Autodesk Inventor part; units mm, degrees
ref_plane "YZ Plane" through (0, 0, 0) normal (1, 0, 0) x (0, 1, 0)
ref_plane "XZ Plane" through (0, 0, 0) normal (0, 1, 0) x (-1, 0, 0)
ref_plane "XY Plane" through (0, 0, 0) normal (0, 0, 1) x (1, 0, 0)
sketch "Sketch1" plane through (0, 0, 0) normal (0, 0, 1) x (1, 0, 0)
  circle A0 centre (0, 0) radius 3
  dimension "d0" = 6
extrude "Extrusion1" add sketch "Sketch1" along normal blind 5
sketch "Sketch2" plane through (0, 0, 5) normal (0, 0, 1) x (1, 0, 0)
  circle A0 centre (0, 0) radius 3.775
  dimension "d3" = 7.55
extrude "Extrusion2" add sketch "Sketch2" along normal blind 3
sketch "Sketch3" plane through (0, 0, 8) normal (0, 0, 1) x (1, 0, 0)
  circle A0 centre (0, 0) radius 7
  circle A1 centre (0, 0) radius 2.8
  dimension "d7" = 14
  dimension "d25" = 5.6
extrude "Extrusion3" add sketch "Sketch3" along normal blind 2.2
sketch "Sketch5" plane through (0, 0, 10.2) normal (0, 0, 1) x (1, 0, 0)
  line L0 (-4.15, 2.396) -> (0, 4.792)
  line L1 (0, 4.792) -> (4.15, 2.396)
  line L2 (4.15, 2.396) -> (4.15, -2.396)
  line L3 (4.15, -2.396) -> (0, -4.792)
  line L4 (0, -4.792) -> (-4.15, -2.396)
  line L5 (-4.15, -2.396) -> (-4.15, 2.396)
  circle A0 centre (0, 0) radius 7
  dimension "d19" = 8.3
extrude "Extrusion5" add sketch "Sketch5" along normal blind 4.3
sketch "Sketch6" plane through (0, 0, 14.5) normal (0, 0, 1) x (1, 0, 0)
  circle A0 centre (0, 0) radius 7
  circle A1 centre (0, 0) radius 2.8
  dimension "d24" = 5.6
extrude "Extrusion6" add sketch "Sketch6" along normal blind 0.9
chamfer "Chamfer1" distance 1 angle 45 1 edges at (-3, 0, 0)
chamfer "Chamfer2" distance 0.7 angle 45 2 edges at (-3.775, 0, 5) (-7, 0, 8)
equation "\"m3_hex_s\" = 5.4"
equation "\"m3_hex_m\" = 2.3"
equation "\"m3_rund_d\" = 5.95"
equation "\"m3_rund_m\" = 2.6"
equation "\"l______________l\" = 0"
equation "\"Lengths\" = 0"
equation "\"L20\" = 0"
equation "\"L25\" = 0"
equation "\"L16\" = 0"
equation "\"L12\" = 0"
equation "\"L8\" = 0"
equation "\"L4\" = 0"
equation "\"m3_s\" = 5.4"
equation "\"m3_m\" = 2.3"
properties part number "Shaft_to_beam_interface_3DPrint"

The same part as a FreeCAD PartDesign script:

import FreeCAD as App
import Part
import Sketcher
Q = App.Units.Quantity


def edges_at(feature, points):
    """Names of the edges that pass closest to the given points."""
    edges = feature.Shape.Edges
    near = lambda p: min(range(len(edges)), key=lambda i: edges[i].distToShape(Part.Vertex(*p))[0])
    return sorted({f"Edge{near(p) + 1}" for p in points})

doc = App.newDocument("Part")
body = doc.addObject("PartDesign::Body", "Body")

sketch1 = doc.addObject("Sketcher::SketchObject", "Sketch")
body.addObject(sketch1)
sketch1.AttachmentSupport = (doc.XY_Plane, [""])
sketch1.MapMode = "FlatFace"
sketch1.addGeometry(Part.Circle(App.Vector(0, 0, 0), App.Vector(0, 0, 1), 3), False)
sketch1.addConstraint(Sketcher.Constraint("Coincident", 0, 3, -1, 1))
sketch1.addConstraint(Sketcher.Constraint("Diameter", 0, 6.0))
pad1 = doc.addObject("PartDesign::Pad", "Pad")
body.addObject(pad1)
pad1.Profile = sketch1
pad1.Length = 5

sketch2 = doc.addObject("Sketcher::SketchObject", "Sketch001")
body.addObject(sketch2)
sketch2.AttachmentSupport = (doc.XY_Plane, [""])
sketch2.MapMode = "FlatFace"
sketch2.AttachmentOffset = App.Placement(App.Vector(0, 0, 5), App.Rotation())
sketch2.addGeometry(Part.Circle(App.Vector(0, 0, 0), App.Vector(0, 0, 1), 3.8), False)
sketch2.addConstraint(Sketcher.Constraint("Coincident", 0, 3, -1, 1))
sketch2.addConstraint(Sketcher.Constraint("Diameter", 0, 7.55))
pad2 = doc.addObject("PartDesign::Pad", "Pad001")
body.addObject(pad2)
pad2.Profile = sketch2
pad2.Length = 3

sketch3 = doc.addObject("Sketcher::SketchObject", "Sketch002")
body.addObject(sketch3)
sketch3.AttachmentSupport = (doc.XY_Plane, [""])
sketch3.MapMode = "FlatFace"
sketch3.AttachmentOffset = App.Placement(App.Vector(0, 0, 8), App.Rotation())
sketch3.addGeometry(Part.Circle(App.Vector(0, 0, 0), App.Vector(0, 0, 1), 7), False)
sketch3.addGeometry(Part.Circle(App.Vector(0, 0, 0), App.Vector(0, 0, 1), 2.8), False)
sketch3.addConstraint(Sketcher.Constraint("Coincident", 0, 3, -1, 1))
sketch3.addConstraint(Sketcher.Constraint("Coincident", 1, 3, -1, 1))
sketch3.addConstraint(Sketcher.Constraint("Diameter", 0, 14.0))
sketch3.addConstraint(Sketcher.Constraint("Diameter", 1, 5.6))
pad3 = doc.addObject("PartDesign::Pad", "Pad002")
body.addObject(pad3)
pad3.Profile = sketch3
pad3.Length = 2.2

sketch4 = doc.addObject("Sketcher::SketchObject", "Sketch003")
body.addObject(sketch4)
sketch4.AttachmentSupport = (doc.XY_Plane, [""])
sketch4.MapMode = "FlatFace"
sketch4.AttachmentOffset = App.Placement(App.Vector(0, 0, 10.2), App.Rotation())
sketch4.addGeometry(Part.Circle(App.Vector(0, 0, 0), App.Vector(0, 0, 1), 7), False)
sketch4.addGeometry(Part.LineSegment(App.Vector(-4.2, -2.4, 0), App.Vector(-4.2, 2.4, 0)), False)
sketch4.addGeometry(Part.LineSegment(App.Vector(-4.2, 2.4, 0), App.Vector(0, 4.8, 0)), False)
sketch4.addGeometry(Part.LineSegment(App.Vector(0, 4.8, 0), App.Vector(4.2, 2.4, 0)), False)
sketch4.addGeometry(Part.LineSegment(App.Vector(4.2, 2.4, 0), App.Vector(4.2, -2.4, 0)), False)
sketch4.addGeometry(Part.LineSegment(App.Vector(4.2, -2.4, 0), App.Vector(0, -4.8, 0)), False)
sketch4.addGeometry(Part.LineSegment(App.Vector(0, -4.8, 0), App.Vector(-4.2, -2.4, 0)), False)
sketch4.addConstraint(Sketcher.Constraint("Coincident", 1, 2, 2, 1))
sketch4.addConstraint(Sketcher.Constraint("Coincident", 2, 2, 3, 1))
sketch4.addConstraint(Sketcher.Constraint("Coincident", 3, 2, 4, 1))
sketch4.addConstraint(Sketcher.Constraint("Coincident", 4, 2, 5, 1))
sketch4.addConstraint(Sketcher.Constraint("Coincident", 5, 2, 6, 1))
sketch4.addConstraint(Sketcher.Constraint("Coincident", 6, 2, 1, 1))
sketch4.addConstraint(Sketcher.Constraint("Vertical", 1))
sketch4.addConstraint(Sketcher.Constraint("Vertical", 4))
sketch4.addConstraint(Sketcher.Constraint("Coincident", 0, 3, -1, 1))
sketch4.addConstraint(Sketcher.Constraint("Symmetric", 1, 2, 4, 2, -1, 1))
sketch4.addConstraint(Sketcher.Constraint("Symmetric", 2, 2, 5, 2, -1, 1))
sketch4.addConstraint(Sketcher.Constraint("PointOnObject", 2, 2, -2))
sketch4.addConstraint(Sketcher.Constraint("Parallel", 3, 6))
sketch4.addConstraint(Sketcher.Constraint("Horizontal", 1, 2, 3, 2))
sketch4.addConstraint(Sketcher.Constraint("Diameter", 0, 14.0))
sketch4.addConstraint(Sketcher.Constraint("DistanceX", 1, 2, 3, 2, 8.3))
sketch4.addConstraint(Sketcher.Constraint("Angle", 2, Q("30 deg")))
sketch4.addConstraint(Sketcher.Constraint("DistanceY", 1, 1, 1, 2, 4.792))
pad4 = doc.addObject("PartDesign::Pad", "Pad003")
body.addObject(pad4)
pad4.Profile = sketch4
pad4.Length = 4.3

sketch5 = doc.addObject("Sketcher::SketchObject", "Sketch004")
body.addObject(sketch5)
sketch5.AttachmentSupport = (doc.XY_Plane, [""])
sketch5.MapMode = "FlatFace"
sketch5.AttachmentOffset = App.Placement(App.Vector(0, 0, 14.5), App.Rotation())
sketch5.addGeometry(Part.Circle(App.Vector(0, 0, 0), App.Vector(0, 0, 1), 7), False)
sketch5.addGeometry(Part.Circle(App.Vector(0, 0, 0), App.Vector(0, 0, 1), 2.8), False)
sketch5.addConstraint(Sketcher.Constraint("Coincident", 0, 3, -1, 1))
sketch5.addConstraint(Sketcher.Constraint("Coincident", 1, 3, -1, 1))
sketch5.addConstraint(Sketcher.Constraint("Diameter", 1, 5.6))
sketch5.addConstraint(Sketcher.Constraint("Diameter", 0, 14.0))
pad5 = doc.addObject("PartDesign::Pad", "Pad004")
body.addObject(pad5)
pad5.Profile = sketch5
pad5.Length = 0.9
doc.recompute()

chamfer = doc.addObject("PartDesign::Chamfer", "Chamfer")
body.addObject(chamfer)
chamfer.Base = (pad5, edges_at(pad5, [(-3, 0, 0)]))
chamfer.Size = 1
doc.recompute()

chamfer2 = doc.addObject("PartDesign::Chamfer", "Chamfer001")
body.addObject(chamfer2)
chamfer2.Base = (chamfer, edges_at(chamfer, [(-3.775, 0, 5), (-7, 0, 8)]))
chamfer2.Size = 0.7

doc.recompute()
